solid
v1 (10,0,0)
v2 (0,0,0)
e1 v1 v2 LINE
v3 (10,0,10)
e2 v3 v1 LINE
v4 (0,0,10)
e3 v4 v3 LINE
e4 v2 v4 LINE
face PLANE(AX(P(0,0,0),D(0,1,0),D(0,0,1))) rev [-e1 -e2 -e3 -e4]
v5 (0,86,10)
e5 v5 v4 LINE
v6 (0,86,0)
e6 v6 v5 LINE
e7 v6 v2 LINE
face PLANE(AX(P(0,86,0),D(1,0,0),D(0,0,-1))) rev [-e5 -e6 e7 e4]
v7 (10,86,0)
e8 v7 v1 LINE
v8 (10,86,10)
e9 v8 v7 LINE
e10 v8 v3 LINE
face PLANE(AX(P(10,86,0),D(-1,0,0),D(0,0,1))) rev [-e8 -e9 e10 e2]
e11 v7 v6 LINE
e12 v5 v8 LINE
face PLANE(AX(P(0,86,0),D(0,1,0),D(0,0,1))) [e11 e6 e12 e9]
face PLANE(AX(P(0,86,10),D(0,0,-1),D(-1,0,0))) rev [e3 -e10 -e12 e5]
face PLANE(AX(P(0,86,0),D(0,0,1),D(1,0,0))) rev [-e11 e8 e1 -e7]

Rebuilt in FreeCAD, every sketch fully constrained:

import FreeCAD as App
import Part
import Sketcher
from FreeCAD import Vector

doc = App.newDocument("Part")
body = doc.addObject("PartDesign::Body", "Body")

sketch1 = body.newObject("Sketcher::SketchObject", "Sketch")
sketch1.AttachmentSupport = (doc.getObject("XZ_Plane"), [""])
sketch1.MapMode = "FlatFace"
sketch1.addGeometry(Part.LineSegment(Vector(0, 0, 0), Vector(0, 10, 0)), False)
sketch1.addGeometry(Part.LineSegment(Vector(0, 10, 0), Vector(10, 10, 0)), False)
sketch1.addGeometry(Part.LineSegment(Vector(10, 10, 0), Vector(10, 0, 0)), False)
sketch1.addGeometry(Part.LineSegment(Vector(10, 0, 0), Vector(0, 0, 0)), False)
sketch1.addConstraint(Sketcher.Constraint("Coincident", 0, 2, 1, 1))
sketch1.addConstraint(Sketcher.Constraint("Coincident", 1, 2, 2, 1))
sketch1.addConstraint(Sketcher.Constraint("Coincident", 2, 2, 3, 1))
sketch1.addConstraint(Sketcher.Constraint("Coincident", 3, 2, 0, 1))
sketch1.addConstraint(Sketcher.Constraint("Vertical", 0))
sketch1.addConstraint(Sketcher.Constraint("Horizontal", 1))
sketch1.addConstraint(Sketcher.Constraint("Vertical", 2))
sketch1.addConstraint(Sketcher.Constraint("Horizontal", 3))
sketch1.addConstraint(Sketcher.Constraint("Coincident", 3, 2, -1, 1))
sketch1.addConstraint(Sketcher.Constraint("Equal", 3, 0))
sketch1.addConstraint(Sketcher.Constraint("DistanceX", 1, 1, 1, 2, 10.0))
pad1 = body.newObject("PartDesign::Pad", "Pad")
pad1.Profile = sketch1
pad1.Length = 86
pad1.Reversed = True

doc.recompute()
